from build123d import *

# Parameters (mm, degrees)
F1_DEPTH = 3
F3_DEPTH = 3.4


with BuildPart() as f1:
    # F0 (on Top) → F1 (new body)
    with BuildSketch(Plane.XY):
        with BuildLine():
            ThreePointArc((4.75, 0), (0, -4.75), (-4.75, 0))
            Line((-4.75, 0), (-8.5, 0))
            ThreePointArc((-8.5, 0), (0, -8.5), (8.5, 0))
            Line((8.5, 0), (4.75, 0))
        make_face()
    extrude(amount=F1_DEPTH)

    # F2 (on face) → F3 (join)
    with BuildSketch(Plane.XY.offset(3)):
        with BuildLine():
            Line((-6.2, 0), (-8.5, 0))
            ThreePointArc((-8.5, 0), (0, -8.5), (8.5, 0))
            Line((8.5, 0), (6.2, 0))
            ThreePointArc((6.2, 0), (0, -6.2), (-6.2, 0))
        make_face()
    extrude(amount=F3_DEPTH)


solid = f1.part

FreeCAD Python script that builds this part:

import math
import FreeCAD as App
import Part
import Sketcher

V = App.Vector

doc = App.newDocument("Part")
body = doc.addObject("PartDesign::Body", "Body")

sketch1 = body.newObject("Sketcher::SketchObject", "Sketch")
sketch1.AttachmentSupport = (doc.getObject("XY_Plane"), [""])
sketch1.MapMode = "FlatFace"
sketch1.addGeometry(Part.ArcOfCircle(Part.Circle(V(0, 0, 0), V(0, 0, 1), 4.75), math.radians(180), math.radians(360)), False)
sketch1.addGeometry(Part.LineSegment(V(-4.75, 0, 0), V(-8.5, 0, 0)), False)
sketch1.addGeometry(Part.ArcOfCircle(Part.Circle(V(0, 0, 0), V(0, 0, 1), 8.5), math.radians(180), math.radians(360)), False)
sketch1.addGeometry(Part.LineSegment(V(8.5, 0, 0), V(4.75, 0, 0)), False)
sketch1.addConstraint(Sketcher.Constraint("Coincident", 0, 1, 1, 1))
sketch1.addConstraint(Sketcher.Constraint("Coincident", 1, 2, 2, 1))
sketch1.addConstraint(Sketcher.Constraint("Coincident", 2, 2, 3, 1))
sketch1.addConstraint(Sketcher.Constraint("Coincident", 3, 2, 0, 2))
sketch1.addConstraint(Sketcher.Constraint("Horizontal", 1))
sketch1.addConstraint(Sketcher.Constraint("Horizontal", 3))
sketch1.addConstraint(Sketcher.Constraint("Coincident", 0, 3, -1, 1))
sketch1.addConstraint(Sketcher.Constraint("Coincident", 2, 3, -1, 1))
sketch1.addConstraint(Sketcher.Constraint("PointOnObject", 0, 1, -1))
sketch1.addConstraint(Sketcher.Constraint("PointOnObject", 2, 2, -1))
sketch1.addConstraint(Sketcher.Constraint("Radius", 2, 8.5))
sketch1.addConstraint(Sketcher.Constraint("Radius", 0, 4.75))
pad1 = body.newObject("PartDesign::Pad", "Pad")
pad1.Profile = sketch1
pad1.Length = 3

sketch2 = body.newObject("Sketcher::SketchObject", "Sketch001")
sketch2.AttachmentSupport = (doc.getObject("XY_Plane"), [""])
sketch2.MapMode = "FlatFace"
sketch2.AttachmentOffset = App.Placement(V(0, 0, 3), App.Rotation())
sketch2.addGeometry(Part.LineSegment(V(-6.2, 0, 0), V(-8.5, 0, 0)), False)
sketch2.addGeometry(Part.ArcOfCircle(Part.Circle(V(0, 0, 0), V(0, 0, 1), 8.5), math.radians(180), math.radians(360)), False)
sketch2.addGeometry(Part.LineSegment(V(8.5, 0, 0), V(6.2, 0, 0)), False)
sketch2.addGeometry(Part.ArcOfCircle(Part.Circle(V(0, 0, 0), V(0, 0, 1), 6.2), math.radians(180), math.radians(360)), False)
sketch2.addConstraint(Sketcher.Constraint("Coincident", 0, 2, 1, 1))
sketch2.addConstraint(Sketcher.Constraint("Coincident", 1, 2, 2, 1))
sketch2.addConstraint(Sketcher.Constraint("Coincident", 2, 2, 3, 2))
sketch2.addConstraint(Sketcher.Constraint("Coincident", 3, 1, 0, 1))
sketch2.addConstraint(Sketcher.Constraint("Horizontal", 0))
sketch2.addConstraint(Sketcher.Constraint("Horizontal", 2))
sketch2.addConstraint(Sketcher.Constraint("Coincident", 1, 3, -1, 1))
sketch2.addConstraint(Sketcher.Constraint("Coincident", 3, 3, -1, 1))
sketch2.addConstraint(Sketcher.Constraint("PointOnObject", 0, 2, -1))
sketch2.addConstraint(Sketcher.Constraint("PointOnObject", 1, 2, -1))
sketch2.addConstraint(Sketcher.Constraint("Radius", 1, 8.5))
sketch2.addConstraint(Sketcher.Constraint("Radius", 3, 6.2))
pad2 = body.newObject("PartDesign::Pad", "Pad001")
pad2.Profile = sketch2
pad2.Length = 3.4

doc.recompute()
